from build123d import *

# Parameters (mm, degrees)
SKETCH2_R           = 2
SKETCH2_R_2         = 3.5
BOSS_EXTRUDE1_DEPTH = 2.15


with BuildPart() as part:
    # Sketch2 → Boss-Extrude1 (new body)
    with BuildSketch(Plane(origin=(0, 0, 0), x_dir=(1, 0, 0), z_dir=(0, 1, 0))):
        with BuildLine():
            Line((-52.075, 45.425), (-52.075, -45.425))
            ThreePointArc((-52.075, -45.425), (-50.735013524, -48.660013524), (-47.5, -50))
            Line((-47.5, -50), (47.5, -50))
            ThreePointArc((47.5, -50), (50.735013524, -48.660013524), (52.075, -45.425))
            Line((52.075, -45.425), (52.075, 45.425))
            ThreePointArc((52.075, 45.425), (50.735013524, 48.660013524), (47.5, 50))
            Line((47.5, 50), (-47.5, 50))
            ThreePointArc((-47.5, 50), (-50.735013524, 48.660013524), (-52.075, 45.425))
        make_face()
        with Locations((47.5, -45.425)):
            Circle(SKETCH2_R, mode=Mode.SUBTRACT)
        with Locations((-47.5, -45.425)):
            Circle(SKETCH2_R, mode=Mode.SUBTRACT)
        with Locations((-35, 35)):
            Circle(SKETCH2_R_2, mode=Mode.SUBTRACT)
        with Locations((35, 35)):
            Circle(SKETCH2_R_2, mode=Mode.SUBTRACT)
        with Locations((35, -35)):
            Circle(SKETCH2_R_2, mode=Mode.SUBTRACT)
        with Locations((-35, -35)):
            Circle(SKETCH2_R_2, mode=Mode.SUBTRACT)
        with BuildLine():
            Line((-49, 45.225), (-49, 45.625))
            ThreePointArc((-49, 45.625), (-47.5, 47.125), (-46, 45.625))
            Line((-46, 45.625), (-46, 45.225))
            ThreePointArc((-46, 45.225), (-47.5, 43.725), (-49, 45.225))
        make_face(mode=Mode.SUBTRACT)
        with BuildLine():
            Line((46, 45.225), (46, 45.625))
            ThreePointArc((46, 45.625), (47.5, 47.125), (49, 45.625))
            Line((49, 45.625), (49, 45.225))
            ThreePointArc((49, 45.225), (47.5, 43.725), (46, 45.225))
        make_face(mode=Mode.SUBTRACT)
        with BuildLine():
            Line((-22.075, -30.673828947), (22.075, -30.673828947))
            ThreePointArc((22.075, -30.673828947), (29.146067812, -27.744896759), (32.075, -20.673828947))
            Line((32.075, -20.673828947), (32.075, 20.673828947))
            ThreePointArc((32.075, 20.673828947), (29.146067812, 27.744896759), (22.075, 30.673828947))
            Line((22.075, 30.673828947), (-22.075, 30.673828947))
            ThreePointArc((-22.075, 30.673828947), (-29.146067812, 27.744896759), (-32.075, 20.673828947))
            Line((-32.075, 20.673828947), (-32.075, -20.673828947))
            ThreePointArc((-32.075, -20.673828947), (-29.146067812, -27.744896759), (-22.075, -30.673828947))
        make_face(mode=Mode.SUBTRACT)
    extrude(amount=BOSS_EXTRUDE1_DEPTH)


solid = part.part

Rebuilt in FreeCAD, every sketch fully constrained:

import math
import FreeCAD as App
import Part
import Sketcher

V = App.Vector

doc = App.newDocument("Part")
body = doc.addObject("PartDesign::Body", "Body")

# Sketch on XZ plane
sketch1 = body.newObject("Sketcher::SketchObject", "Sketch")
sketch1.AttachmentSupport = (doc.getObject("XZ_Plane"), [""])
sketch1.MapMode = "FlatFace"
sketch1.addGeometry([
    Part.LineSegment(V(-52.08, -45.42, 0), V(-52.08, 45.42, 0)),  # 0
    Part.ArcOfCircle(Part.Circle(V(-47.5, 45.42, 0), V(0, 0, 1), 4.58), math.radians(90), math.radians(180)),  # 1
    Part.LineSegment(V(-47.5, 50, 0), V(47.5, 50, 0)),  # 2
    Part.ArcOfCircle(Part.Circle(V(47.5, 45.42, 0), V(0, 0, 1), 4.58), math.radians(0), math.radians(90)),  # 3
    Part.LineSegment(V(52.08, 45.42, 0), V(52.08, -45.42, 0)),  # 4
    Part.ArcOfCircle(Part.Circle(V(47.5, -45.42, 0), V(0, 0, 1), 4.58), math.radians(-90), math.radians(0)),  # 5
    Part.LineSegment(V(47.5, -50, 0), V(-47.5, -50, 0)),  # 6
    Part.ArcOfCircle(Part.Circle(V(-47.5, -45.42, 0), V(0, 0, 1), 4.58), math.radians(180), math.radians(270)),  # 7
    Part.Circle(V(-47.5, 45.42, 0), V(0, 0, 1), 2),  # 8
    Part.Circle(V(-35, 35, 0), V(0, 0, 1), 3.5),  # 9
    Part.Circle(V(47.5, 45.42, 0), V(0, 0, 1), 2),  # 10
    Part.Circle(V(35, 35, 0), V(0, 0, 1), 3.5),  # 11
    Part.Circle(V(-35, -35, 0), V(0, 0, 1), 3.5),  # 12
    Part.ArcOfCircle(Part.Circle(V(-47.5, -45.23, 0), V(0, 0, 1), 1.5), math.radians(0), math.radians(180)),  # 13
    Part.LineSegment(V(-49, -45.23, 0), V(-49, -45.62, 0)),  # 14
    Part.ArcOfCircle(Part.Circle(V(-47.5, -45.62, 0), V(0, 0, 1), 1.5), math.radians(180), math.radians(360)),  # 15
    Part.LineSegment(V(-46, -45.62, 0), V(-46, -45.23, 0)),  # 16
    Part.LineSegment(V(22.07, 30.67, 0), V(-22.07, 30.67, 0)),  # 17
    Part.ArcOfCircle(Part.Circle(V(-22.07, 20.67, 0), V(0, 0, 1), 10), math.radians(90), math.radians(180)),  # 18
    Part.LineSegment(V(-32.08, 20.67, 0), V(-32.08, -20.67, 0)),  # 19
    Part.ArcOfCircle(Part.Circle(V(-22.07, -20.67, 0), V(0, 0, 1), 10), math.radians(180), math.radians(270)),  # 20
    Part.LineSegment(V(-22.07, -30.67, 0), V(22.07, -30.67, 0)),  # 21
    Part.ArcOfCircle(Part.Circle(V(22.07, -20.67, 0), V(0, 0, 1), 10), math.radians(-90), math.radians(0)),  # 22
    Part.LineSegment(V(32.08, -20.67, 0), V(32.08, 20.67, 0)),  # 23
    Part.ArcOfCircle(Part.Circle(V(22.07, 20.67, 0), V(0, 0, 1), 10), math.radians(0), math.radians(90)),  # 24
    Part.Circle(V(35, -35, 0), V(0, 0, 1), 3.5),  # 25
    Part.ArcOfCircle(Part.Circle(V(47.5, -45.23, 0), V(0, 0, 1), 1.5), math.radians(0), math.radians(180)),  # 26
    Part.LineSegment(V(46, -45.23, 0), V(46, -45.62, 0)),  # 27
    Part.ArcOfCircle(Part.Circle(V(47.5, -45.62, 0), V(0, 0, 1), 1.5), math.radians(180), math.radians(360)),  # 28
    Part.LineSegment(V(49, -45.62, 0), V(49, -45.23, 0)),  # 29
], False)
sketch1.addConstraint([
    Sketcher.Constraint("Tangent", 0, 2, 1, 2),
    Sketcher.Constraint("Tangent", 1, 1, 2, 1),
    Sketcher.Constraint("Tangent", 2, 2, 3, 2),
    Sketcher.Constraint("Tangent", 3, 1, 4, 1),
    Sketcher.Constraint("Tangent", 4, 2, 5, 2),
    Sketcher.Constraint("Tangent", 5, 1, 6, 1),
    Sketcher.Constraint("Tangent", 6, 2, 7, 2),
    Sketcher.Constraint("Tangent", 7, 1, 0, 1),
    Sketcher.Constraint("Tangent", 13, 2, 14, 1),
    Sketcher.Constraint("Tangent", 14, 2, 15, 1),
    Sketcher.Constraint("Tangent", 15, 2, 16, 1),
    Sketcher.Constraint("Tangent", 16, 2, 13, 1),
    Sketcher.Constraint("Tangent", 17, 2, 18, 1),
    Sketcher.Constraint("Tangent", 18, 2, 19, 1),
    Sketcher.Constraint("Tangent", 19, 2, 20, 1),
    Sketcher.Constraint("Tangent", 20, 2, 21, 1),
    Sketcher.Constraint("Tangent", 21, 2, 22, 1),
    Sketcher.Constraint("Tangent", 22, 2, 23, 1),
    Sketcher.Constraint("Tangent", 23, 2, 24, 1),
    Sketcher.Constraint("Tangent", 24, 2, 17, 1),
    Sketcher.Constraint("Tangent", 26, 2, 27, 1),
    Sketcher.Constraint("Tangent", 27, 2, 28, 1),
    Sketcher.Constraint("Tangent", 28, 2, 29, 1),
    Sketcher.Constraint("Tangent", 29, 2, 26, 1),
    Sketcher.Constraint("Vertical", 0),
    Sketcher.Constraint("Horizontal", 2),
    Sketcher.Constraint("Vertical", 4),
    Sketcher.Constraint("Horizontal", 6),
    Sketcher.Constraint("Vertical", 14),
    Sketcher.Constraint("Vertical", 16),
    Sketcher.Constraint("Horizontal", 17),
    Sketcher.Constraint("Vertical", 19),
    Sketcher.Constraint("Horizontal", 21),
    Sketcher.Constraint("Vertical", 23),
    Sketcher.Constraint("Vertical", 27),
    Sketcher.Constraint("Vertical", 29),
    Sketcher.Constraint("Coincident", 8, 3, 1, 3),
    Sketcher.Constraint("Coincident", 10, 3, 3, 3),
    Sketcher.Constraint("Equal", 1, 3),
    Sketcher.Constraint("Equal", 3, 5),
    Sketcher.Constraint("Equal", 5, 7),
    Sketcher.Constraint("Equal", 8, 10),
    Sketcher.Constraint("Equal", 9, 11),
    Sketcher.Constraint("Equal", 11, 12),
    Sketcher.Constraint("Equal", 18, 20),
    Sketcher.Constraint("Equal", 20, 22),
    Sketcher.Constraint("Equal", 22, 24),
    Sketcher.Constraint("Equal", 12, 25),
    Sketcher.Constraint("Equal", 15, 26),
    Sketcher.Constraint("Symmetric", 1, 3, 5, 3, -1, 1),
    Sketcher.Constraint("Symmetric", 11, 3, 12, 3, -1, 1),
    Sketcher.Constraint("Symmetric", 18, 3, 22, 3, -1, 1),
    Sketcher.Constraint("Symmetric", 9, 3, 25, 3, -1, 1),
    Sketcher.Constraint("Symmetric", 9, 3, 11, 3, -2),
    Sketcher.Constraint("Symmetric", 13, 3, 26, 3, -2),
    Sketcher.Constraint("Horizontal", 15, 3, 28, 3),
    Sketcher.Constraint("Vertical", 8, 3, 13, 3),
    Sketcher.Constraint("Diameter", 8, 4.0),
    Sketcher.Constraint("Diameter", 9, 7.0),
    Sketcher.Constraint("Radius", 18, 10.0),
    Sketcher.Constraint("Radius", 13, 1.5),
    Sketcher.Constraint("DistanceX", 2, 1, 2, 2, 95.0),
    Sketcher.Constraint("DistanceY", 14, 2, 14, 1, 0.4),
    Sketcher.Constraint("DistanceX", 9, 3, -1, 1, 35.0),
    Sketcher.Constraint("DistanceY", -1, 1, 9, 3, 35.0),
    Sketcher.Constraint("DistanceY", -1, 1, 1, 1, 50.0),
    Sketcher.Constraint("Radius", 1, 4.575),
    Sketcher.Constraint("DistanceX", 0, 2, 18, 3, 30.0),
    Sketcher.Constraint("DistanceY", 7, 3, 13, 3, 0.2),
    Sketcher.Constraint("DistanceY", 19, 2, 19, 1, 41.347658),
])
pad1 = body.newObject("PartDesign::Pad", "Pad")
pad1.Profile = sketch1
pad1.Length = 2.15
pad1.Reversed = True

doc.recompute()
